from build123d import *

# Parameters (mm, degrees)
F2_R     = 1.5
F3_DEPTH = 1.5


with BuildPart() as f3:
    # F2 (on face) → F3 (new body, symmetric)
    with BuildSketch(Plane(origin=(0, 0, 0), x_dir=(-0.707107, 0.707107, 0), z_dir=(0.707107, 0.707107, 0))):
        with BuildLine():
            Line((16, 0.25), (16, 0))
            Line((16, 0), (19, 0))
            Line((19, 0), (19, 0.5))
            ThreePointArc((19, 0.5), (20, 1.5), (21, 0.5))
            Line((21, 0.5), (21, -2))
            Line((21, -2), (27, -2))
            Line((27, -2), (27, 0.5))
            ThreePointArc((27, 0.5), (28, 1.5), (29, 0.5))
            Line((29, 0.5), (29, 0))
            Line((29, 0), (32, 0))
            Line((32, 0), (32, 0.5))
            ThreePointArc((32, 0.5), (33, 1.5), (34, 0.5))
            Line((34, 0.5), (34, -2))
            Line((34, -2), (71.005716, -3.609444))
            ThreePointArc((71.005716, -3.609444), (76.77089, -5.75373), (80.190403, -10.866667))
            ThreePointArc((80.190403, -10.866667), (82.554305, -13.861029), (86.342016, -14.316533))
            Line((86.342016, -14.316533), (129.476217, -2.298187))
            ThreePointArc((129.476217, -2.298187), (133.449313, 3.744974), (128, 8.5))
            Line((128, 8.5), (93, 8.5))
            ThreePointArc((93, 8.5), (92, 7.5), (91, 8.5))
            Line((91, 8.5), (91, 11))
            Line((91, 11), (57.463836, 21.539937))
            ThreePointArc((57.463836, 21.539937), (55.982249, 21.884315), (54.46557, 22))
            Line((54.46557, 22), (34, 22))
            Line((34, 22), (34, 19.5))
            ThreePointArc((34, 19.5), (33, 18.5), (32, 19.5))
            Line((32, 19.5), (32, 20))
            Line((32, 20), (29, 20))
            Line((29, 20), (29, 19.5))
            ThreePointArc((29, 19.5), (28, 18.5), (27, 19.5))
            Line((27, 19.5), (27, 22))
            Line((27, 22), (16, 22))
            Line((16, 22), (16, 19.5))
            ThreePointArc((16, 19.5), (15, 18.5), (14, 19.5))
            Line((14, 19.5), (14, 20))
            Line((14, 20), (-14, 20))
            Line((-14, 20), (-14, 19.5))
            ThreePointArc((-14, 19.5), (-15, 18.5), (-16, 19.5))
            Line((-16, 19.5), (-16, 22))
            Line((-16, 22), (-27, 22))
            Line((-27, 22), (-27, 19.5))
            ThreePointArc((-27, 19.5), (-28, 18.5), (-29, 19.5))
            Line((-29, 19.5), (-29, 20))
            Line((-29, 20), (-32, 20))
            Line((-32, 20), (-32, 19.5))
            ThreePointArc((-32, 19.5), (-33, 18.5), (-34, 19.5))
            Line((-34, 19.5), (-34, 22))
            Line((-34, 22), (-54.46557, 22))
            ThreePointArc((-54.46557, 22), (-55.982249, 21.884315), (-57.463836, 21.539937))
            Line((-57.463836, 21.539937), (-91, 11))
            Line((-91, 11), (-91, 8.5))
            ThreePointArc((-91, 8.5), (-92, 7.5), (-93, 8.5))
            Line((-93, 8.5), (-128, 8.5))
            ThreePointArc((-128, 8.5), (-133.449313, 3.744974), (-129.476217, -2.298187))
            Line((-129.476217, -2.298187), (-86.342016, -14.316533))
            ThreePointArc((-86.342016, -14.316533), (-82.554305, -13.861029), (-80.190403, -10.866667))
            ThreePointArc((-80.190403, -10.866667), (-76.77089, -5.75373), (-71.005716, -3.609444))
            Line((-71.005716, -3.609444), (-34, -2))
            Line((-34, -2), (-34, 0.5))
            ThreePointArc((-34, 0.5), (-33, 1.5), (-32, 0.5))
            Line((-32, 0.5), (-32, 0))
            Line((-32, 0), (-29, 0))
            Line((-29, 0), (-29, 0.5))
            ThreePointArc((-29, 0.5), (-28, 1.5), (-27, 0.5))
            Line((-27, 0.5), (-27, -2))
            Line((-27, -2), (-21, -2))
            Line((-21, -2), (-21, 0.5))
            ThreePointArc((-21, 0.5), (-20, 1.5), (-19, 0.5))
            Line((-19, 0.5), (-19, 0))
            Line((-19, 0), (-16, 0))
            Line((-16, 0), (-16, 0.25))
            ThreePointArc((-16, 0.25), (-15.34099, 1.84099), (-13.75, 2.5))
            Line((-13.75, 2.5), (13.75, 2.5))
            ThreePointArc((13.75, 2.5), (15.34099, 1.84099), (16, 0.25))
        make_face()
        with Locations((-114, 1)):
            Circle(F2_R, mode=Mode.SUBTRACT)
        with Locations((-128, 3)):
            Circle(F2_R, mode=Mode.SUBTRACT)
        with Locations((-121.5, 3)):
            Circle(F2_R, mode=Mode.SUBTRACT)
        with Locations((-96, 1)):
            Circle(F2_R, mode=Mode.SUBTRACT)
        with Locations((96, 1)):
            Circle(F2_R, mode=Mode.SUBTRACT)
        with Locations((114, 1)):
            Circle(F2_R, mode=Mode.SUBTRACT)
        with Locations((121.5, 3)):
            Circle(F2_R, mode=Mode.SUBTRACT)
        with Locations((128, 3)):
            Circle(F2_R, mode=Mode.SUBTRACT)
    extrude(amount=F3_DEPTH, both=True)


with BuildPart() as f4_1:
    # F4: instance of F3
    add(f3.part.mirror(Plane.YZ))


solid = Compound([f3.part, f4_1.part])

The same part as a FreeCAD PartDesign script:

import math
import FreeCAD as App
import Part
import Sketcher

V = App.Vector
Q = App.Units.Quantity

doc = App.newDocument("Part")
body = doc.addObject("PartDesign::Body", "Body")

# Sketch on an angled plane
sketch1 = body.newObject("Sketcher::SketchObject", "Sketch")
sketch1.Placement = App.Placement(V(0, 0, 0), App.Rotation(V(-0.707106781, 0.707106781, 0), V(0, 0, 0.999999999), V(0.707106781, 0.707106781, 0), "ZXY"))
sketch1.addGeometry(Part.LineSegment(V(16, 0.25, 0), V(16, 0, 0)), False)
sketch1.addGeometry(Part.LineSegment(V(16, 0, 0), V(19, 0, 0)), False)
sketch1.addGeometry(Part.LineSegment(V(19, 0, 0), V(19, 0.5, 0)), False)
sketch1.addGeometry(Part.ArcOfCircle(Part.Circle(V(20, 0.5, 0), V(0, 0, 1), 1), math.radians(0), math.radians(180)), False)
sketch1.addGeometry(Part.LineSegment(V(21, 0.5, 0), V(21, -2, 0)), False)
sketch1.addGeometry(Part.LineSegment(V(21, -2, 0), V(27, -2, 0)), False)
sketch1.addGeometry(Part.LineSegment(V(27, -2, 0), V(27, 0.5, 0)), False)
sketch1.addGeometry(Part.ArcOfCircle(Part.Circle(V(28, 0.5, 0), V(0, 0, 1), 1), math.radians(0), math.radians(180)), False)
sketch1.addGeometry(Part.LineSegment(V(29, 0.5, 0), V(29, 0, 0)), False)
sketch1.addGeometry(Part.LineSegment(V(29, 0, 0), V(32, 0, 0)), False)
sketch1.addGeometry(Part.LineSegment(V(32, 0, 0), V(32, 0.5, 0)), False)
sketch1.addGeometry(Part.ArcOfCircle(Part.Circle(V(33, 0.5, 0), V(0, 0, 1), 1), math.radians(0), math.radians(180)), False)
sketch1.addGeometry(Part.LineSegment(V(34, 0.5, 0), V(34, -2, 0)), False)
sketch1.addGeometry(Part.LineSegment(V(34, -2, 0), V(71.01, -3.61, 0)), False)
sketch1.addGeometry(Part.ArcOfCircle(Part.Circle(V(70.57, -13.6, 0), V(0, 0, 1), 10), math.radians(16), math.radians(88)), False)
sketch1.addGeometry(Part.ArcOfCircle(Part.Circle(V(85, -9.5, 0), V(0, 0, 1), 5), math.radians(-164), math.radians(-74)), False)
sketch1.addGeometry(Part.LineSegment(V(86.34, -14.32, 0), V(129.48, -2.3, 0)), False)
sketch1.addGeometry(Part.ArcOfCircle(Part.Circle(V(128, 3, 0), V(0, 0, 1), 5.5), math.radians(-74), math.radians(90)), False)
sketch1.addGeometry(Part.LineSegment(V(128, 8.5, 0), V(93, 8.5, 0)), False)
sketch1.addGeometry(Part.ArcOfCircle(Part.Circle(V(92, 8.5, 0), V(0, 0, 1), 1), math.radians(180), math.radians(360)), False)
sketch1.addGeometry(Part.LineSegment(V(91, 8.5, 0), V(91, 11, 0)), False)
sketch1.addGeometry(Part.LineSegment(V(91, 11, 0), V(57.46, 21.54, 0)), False)
sketch1.addGeometry(Part.ArcOfCircle(Part.Circle(V(54.47, 12, 0), V(0, 0, 1), 10), math.radians(72.55), math.radians(90)), False)
sketch1.addGeometry(Part.LineSegment(V(54.47, 22, 0), V(34, 22, 0)), False)
sketch1.addGeometry(Part.LineSegment(V(34, 22, 0), V(34, 19.5, 0)), False)
sketch1.addGeometry(Part.ArcOfCircle(Part.Circle(V(33, 19.5, 0), V(0, 0, 1), 1), math.radians(180), math.radians(360)), False)
sketch1.addGeometry(Part.LineSegment(V(32, 19.5, 0), V(32, 20, 0)), False)
sketch1.addGeometry(Part.LineSegment(V(32, 20, 0), V(29, 20, 0)), False)
sketch1.addGeometry(Part.LineSegment(V(29, 20, 0), V(29, 19.5, 0)), False)
sketch1.addGeometry(Part.ArcOfCircle(Part.Circle(V(28, 19.5, 0), V(0, 0, 1), 1), math.radians(180), math.radians(360)), False)
sketch1.addGeometry(Part.LineSegment(V(27, 19.5, 0), V(27, 22, 0)), False)
sketch1.addGeometry(Part.LineSegment(V(27, 22, 0), V(16, 22, 0)), False)
sketch1.addGeometry(Part.LineSegment(V(16, 22, 0), V(16, 19.5, 0)), False)
sketch1.addGeometry(Part.ArcOfCircle(Part.Circle(V(15, 19.5, 0), V(0, 0, 1), 1), math.radians(180), math.radians(360)), False)
sketch1.addGeometry(Part.LineSegment(V(14, 19.5, 0), V(14, 20, 0)), False)
sketch1.addGeometry(Part.LineSegment(V(14, 20, 0), V(-14, 20, 0)), False)
sketch1.addGeometry(Part.LineSegment(V(-14, 20, 0), V(-14, 19.5, 0)), False)
sketch1.addGeometry(Part.ArcOfCircle(Part.Circle(V(-15, 19.5, 0), V(0, 0, 1), 1), math.radians(180), math.radians(360)), False)
sketch1.addGeometry(Part.LineSegment(V(-16, 19.5, 0), V(-16, 22, 0)), False)
sketch1.addGeometry(Part.LineSegment(V(-16, 22, 0), V(-27, 22, 0)), False)
sketch1.addGeometry(Part.LineSegment(V(-27, 22, 0), V(-27, 19.5, 0)), False)
sketch1.addGeometry(Part.ArcOfCircle(Part.Circle(V(-28, 19.5, 0), V(0, 0, 1), 1), math.radians(180), math.radians(360)), False)
sketch1.addGeometry(Part.LineSegment(V(-29, 19.5, 0), V(-29, 20, 0)), False)
sketch1.addGeometry(Part.LineSegment(V(-29, 20, 0), V(-32, 20, 0)), False)
sketch1.addGeometry(Part.LineSegment(V(-32, 20, 0), V(-32, 19.5, 0)), False)
sketch1.addGeometry(Part.ArcOfCircle(Part.Circle(V(-33, 19.5, 0), V(0, 0, 1), 1), math.radians(180), math.radians(360)), False)
sketch1.addGeometry(Part.LineSegment(V(-34, 19.5, 0), V(-34, 22, 0)), False)
sketch1.addGeometry(Part.LineSegment(V(-34, 22, 0), V(-54.47, 22, 0)), False)
sketch1.addGeometry(Part.ArcOfCircle(Part.Circle(V(-54.47, 12, 0), V(0, 0, 1), 10), math.radians(90), math.radians(107.45)), False)
sketch1.addGeometry(Part.LineSegment(V(-57.46, 21.54, 0), V(-91, 11, 0)), False)
sketch1.addGeometry(Part.LineSegment(V(-91, 11, 0), V(-91, 8.5, 0)), False)
sketch1.addGeometry(Part.ArcOfCircle(Part.Circle(V(-92, 8.5, 0), V(0, 0, 1), 1), math.radians(180), math.radians(360)), False)
sketch1.addGeometry(Part.LineSegment(V(-93, 8.5, 0), V(-128, 8.5, 0)), False)
sketch1.addGeometry(Part.ArcOfCircle(Part.Circle(V(-128, 3, 0), V(0, 0, 1), 5.5), math.radians(90), math.radians(254)), False)
sketch1.addGeometry(Part.LineSegment(V(-129.48, -2.3, 0), V(-86.34, -14.32, 0)), False)
sketch1.addGeometry(Part.ArcOfCircle(Part.Circle(V(-85, -9.5, 0), V(0, 0, 1), 5), math.radians(-106), math.radians(-16)), False)
sketch1.addGeometry(Part.ArcOfCircle(Part.Circle(V(-70.57, -13.6, 0), V(0, 0, 1), 10), math.radians(92), math.radians(164)), False)
sketch1.addGeometry(Part.LineSegment(V(-71.01, -3.61, 0), V(-34, -2, 0)), False)
sketch1.addGeometry(Part.LineSegment(V(-34, -2, 0), V(-34, 0.5, 0)), False)
sketch1.addGeometry(Part.ArcOfCircle(Part.Circle(V(-33, 0.5, 0), V(0, 0, 1), 1), math.radians(0), math.radians(180)), False)
sketch1.addGeometry(Part.LineSegment(V(-32, 0.5, 0), V(-32, 0, 0)), False)
sketch1.addGeometry(Part.LineSegment(V(-32, 0, 0), V(-29, 0, 0)), False)
sketch1.addGeometry(Part.LineSegment(V(-29, 0, 0), V(-29, 0.5, 0)), False)
sketch1.addGeometry(Part.ArcOfCircle(Part.Circle(V(-28, 0.5, 0), V(0, 0, 1), 1), math.radians(0), math.radians(180)), False)
sketch1.addGeometry(Part.LineSegment(V(-27, 0.5, 0), V(-27, -2, 0)), False)
sketch1.addGeometry(Part.LineSegment(V(-27, -2, 0), V(-21, -2, 0)), False)
sketch1.addGeometry(Part.LineSegment(V(-21, -2, 0), V(-21, 0.5, 0)), False)
sketch1.addGeometry(Part.ArcOfCircle(Part.Circle(V(-20, 0.5, 0), V(0, 0, 1), 1), math.radians(0), math.radians(180)), False)
sketch1.addGeometry(Part.LineSegment(V(-19, 0.5, 0), V(-19, 0, 0)), False)
sketch1.addGeometry(Part.LineSegment(V(-19, 0, 0), V(-16, 0, 0)), False)
sketch1.addGeometry(Part.LineSegment(V(-16, 0, 0), V(-16, 0.25, 0)), False)
sketch1.addGeometry(Part.ArcOfCircle(Part.Circle(V(-13.75, 0.25, 0), V(0, 0, 1), 2.25), math.radians(90), math.radians(180)), False)
sketch1.addGeometry(Part.LineSegment(V(-13.75, 2.5, 0), V(13.75, 2.5, 0)), False)
sketch1.addGeometry(Part.ArcOfCircle(Part.Circle(V(13.75, 0.25, 0), V(0, 0, 1), 2.25), math.radians(0), math.radians(90)), False)
sketch1.addGeometry(Part.Circle(V(-114, 1, 0), V(0, 0, 1), 1.5), False)
sketch1.addGeometry(Part.Circle(V(-96, 1, 0), V(0, 0, 1), 1.5), False)
sketch1.addGeometry(Part.Circle(V(96, 1, 0), V(0, 0, 1), 1.5), False)
sketch1.addGeometry(Part.Circle(V(114, 1, 0), V(0, 0, 1), 1.5), False)
sketch1.addGeometry(Part.Circle(V(-128, 3, 0), V(0, 0, 1), 1.5), False)
sketch1.addGeometry(Part.Circle(V(-121.5, 3, 0), V(0, 0, 1), 1.5), False)
sketch1.addGeometry(Part.Circle(V(121.5, 3, 0), V(0, 0, 1), 1.5), False)
sketch1.addGeometry(Part.Circle(V(128, 3, 0), V(0, 0, 1), 1.5), False)
sketch1.addConstraint(Sketcher.Constraint("Coincident", 0, 2, 1, 1))
sketch1.addConstraint(Sketcher.Constraint("Coincident", 1, 2, 2, 1))
sketch1.addConstraint(Sketcher.Constraint("Tangent", 2, 2, 3, 2))
sketch1.addConstraint(Sketcher.Constraint("Tangent", 3, 1, 4, 1))
sketch1.addConstraint(Sketcher.Constraint("Coincident", 4, 2, 5, 1))
sketch1.addConstraint(Sketcher.Constraint("Coincident", 5, 2, 6, 1))
sketch1.addConstraint(Sketcher.Constraint("Tangent", 6, 2, 7, 2))
sketch1.addConstraint(Sketcher.Constraint("Tangent", 7, 1, 8, 1))
sketch1.addConstraint(Sketcher.Constraint("Coincident", 8, 2, 9, 1))
sketch1.addConstraint(Sketcher.Constraint("Coincident", 9, 2, 10, 1))
sketch1.addConstraint(Sketcher.Constraint("Tangent", 10, 2, 11, 2))
sketch1.addConstraint(Sketcher.Constraint("Tangent", 11, 1, 12, 1))
sketch1.addConstraint(Sketcher.Constraint("Coincident", 12, 2, 13, 1))
sketch1.addConstraint(Sketcher.Constraint("Tangent", 13, 2, 14, 2))
sketch1.addConstraint(Sketcher.Constraint("Tangent", 14, 1, 15, 1))
sketch1.addConstraint(Sketcher.Constraint("Tangent", 15, 2, 16, 1))
sketch1.addConstraint(Sketcher.Constraint("Tangent", 16, 2, 17, 1))
sketch1.addConstraint(Sketcher.Constraint("Tangent", 17, 2, 18, 1))
sketch1.addConstraint(Sketcher.Constraint("Coincident", 18, 2, 19, 2))
sketch1.addConstraint(Sketcher.Constraint("Tangent", 19, 1, 20, 1))
sketch1.addConstraint(Sketcher.Constraint("Coincident", 20, 2, 21, 1))
sketch1.addConstraint(Sketcher.Constraint("Tangent", 21, 2, 22, 1))
sketch1.addConstraint(Sketcher.Constraint("Tangent", 22, 2, 23, 1))
sketch1.addConstraint(Sketcher.Constraint("Coincident", 23, 2, 24, 1))
sketch1.addConstraint(Sketcher.Constraint("Tangent", 24, 2, 25, 2))
sketch1.addConstraint(Sketcher.Constraint("Tangent", 25, 1, 26, 1))
sketch1.addConstraint(Sketcher.Constraint("Coincident", 26, 2, 27, 1))
sketch1.addConstraint(Sketcher.Constraint("Coincident", 27, 2, 28, 1))
sketch1.addConstraint(Sketcher.Constraint("Tangent", 28, 2, 29, 2))
sketch1.addConstraint(Sketcher.Constraint("Tangent", 29, 1, 30, 1))
sketch1.addConstraint(Sketcher.Constraint("Coincident", 30, 2, 31, 1))
sketch1.addConstraint(Sketcher.Constraint("Coincident", 31, 2, 32, 1))
sketch1.addConstraint(Sketcher.Constraint("Tangent", 32, 2, 33, 2))
sketch1.addConstraint(Sketcher.Constraint("Tangent", 33, 1, 34, 1))
sketch1.addConstraint(Sketcher.Constraint("Coincident", 34, 2, 35, 1))
sketch1.addConstraint(Sketcher.Constraint("Coincident", 35, 2, 36, 1))
sketch1.addConstraint(Sketcher.Constraint("Tangent", 36, 2, 37, 2))
sketch1.addConstraint(Sketcher.Constraint("Tangent", 37, 1, 38, 1))
sketch1.addConstraint(Sketcher.Constraint("Coincident", 38, 2, 39, 1))
sketch1.addConstraint(Sketcher.Constraint("Coincident", 39, 2, 40, 1))
sketch1.addConstraint(Sketcher.Constraint("Tangent", 40, 2, 41, 2))
sketch1.addConstraint(Sketcher.Constraint("Tangent", 41, 1, 42, 1))
sketch1.addConstraint(Sketcher.Constraint("Coincident", 42, 2, 43, 1))
sketch1.addConstraint(Sketcher.Constraint("Coincident", 43, 2, 44, 1))
sketch1.addConstraint(Sketcher.Constraint("Tangent", 44, 2, 45, 2))
sketch1.addConstraint(Sketcher.Constraint("Tangent", 45, 1, 46, 1))
sketch1.addConstraint(Sketcher.Constraint("Coincident", 46, 2, 47, 1))
sketch1.addConstraint(Sketcher.Constraint("Tangent", 47, 2, 48, 1))
sketch1.addConstraint(Sketcher.Constraint("Tangent", 48, 2, 49, 1))
sketch1.addConstraint(Sketcher.Constraint("Coincident", 49, 2, 50, 1))
sketch1.addConstraint(Sketcher.Constraint("Tangent", 50, 2, 51, 2))
sketch1.addConstraint(Sketcher.Constraint("Coincident", 51, 1, 52, 1))
sketch1.addConstraint(Sketcher.Constraint("Tangent", 52, 2, 53, 1))
sketch1.addConstraint(Sketcher.Constraint("Tangent", 53, 2, 54, 1))
sketch1.addConstraint(Sketcher.Constraint("Tangent", 54, 2, 55, 1))
sketch1.addConstraint(Sketcher.Constraint("Tangent", 55, 2, 56, 2))
sketch1.addConstraint(Sketcher.Constraint("Tangent", 56, 1, 57, 1))
sketch1.addConstraint(Sketcher.Constraint("Coincident", 57, 2, 58, 1))
sketch1.addConstraint(Sketcher.Constraint("Tangent", 58, 2, 59, 2))
sketch1.addConstraint(Sketcher.Constraint("Tangent", 59, 1, 60, 1))
sketch1.addConstraint(Sketcher.Constraint("Coincident", 60, 2, 61, 1))
sketch1.addConstraint(Sketcher.Constraint("Coincident", 61, 2, 62, 1))
sketch1.addConstraint(Sketcher.Constraint("Tangent", 62, 2, 63, 2))
sketch1.addConstraint(Sketcher.Constraint("Tangent", 63, 1, 64, 1))
sketch1.addConstraint(Sketcher.Constraint("Coincident", 64, 2, 65, 1))
sketch1.addConstraint(Sketcher.Constraint("Coincident", 65, 2, 66, 1))
sketch1.addConstraint(Sketcher.Constraint("Tangent", 66, 2, 67, 2))
sketch1.addConstraint(Sketcher.Constraint("Tangent", 67, 1, 68, 1))
sketch1.addConstraint(Sketcher.Constraint("Coincident", 68, 2, 69, 1))
sketch1.addConstraint(Sketcher.Constraint("Coincident", 69, 2, 70, 1))
sketch1.addConstraint(Sketcher.Constraint("Tangent", 70, 2, 71, 2))
sketch1.addConstraint(Sketcher.Constraint("Tangent", 71, 1, 72, 1))
sketch1.addConstraint(Sketcher.Constraint("Tangent", 72, 2, 73, 2))
sketch1.addConstraint(Sketcher.Constraint("Tangent", 73, 1, 0, 1))
sketch1.addConstraint(Sketcher.Constraint("Vertical", 0))
sketch1.addConstraint(Sketcher.Constraint("Horizontal", 1))
sketch1.addConstraint(Sketcher.Constraint("Vertical", 2))
sketch1.addConstraint(Sketcher.Constraint("Vertical", 4))
sketch1.addConstraint(Sketcher.Constraint("Horizontal", 5))
sketch1.addConstraint(Sketcher.Constraint("Vertical", 6))
sketch1.addConstraint(Sketcher.Constraint("Vertical", 8))
sketch1.addConstraint(Sketcher.Constraint("Horizontal", 9))
sketch1.addConstraint(Sketcher.Constraint("Vertical", 10))
sketch1.addConstraint(Sketcher.Constraint("Vertical", 12))
sketch1.addConstraint(Sketcher.Constraint("Horizontal", 18))
sketch1.addConstraint(Sketcher.Constraint("Vertical", 20))
sketch1.addConstraint(Sketcher.Constraint("Horizontal", 23))
sketch1.addConstraint(Sketcher.Constraint("Vertical", 24))
sketch1.addConstraint(Sketcher.Constraint("Vertical", 26))
sketch1.addConstraint(Sketcher.Constraint("Horizontal", 27))
sketch1.addConstraint(Sketcher.Constraint("Vertical", 28))
sketch1.addConstraint(Sketcher.Constraint("Vertical", 30))
sketch1.addConstraint(Sketcher.Constraint("Horizontal", 31))
sketch1.addConstraint(Sketcher.Constraint("Vertical", 32))
sketch1.addConstraint(Sketcher.Constraint("Vertical", 34))
sketch1.addConstraint(Sketcher.Constraint("Horizontal", 35))
sketch1.addConstraint(Sketcher.Constraint("Vertical", 36))
sketch1.addConstraint(Sketcher.Constraint("Vertical", 38))
sketch1.addConstraint(Sketcher.Constraint("Horizontal", 39))
sketch1.addConstraint(Sketcher.Constraint("Vertical", 40))
sketch1.addConstraint(Sketcher.Constraint("Vertical", 42))
sketch1.addConstraint(Sketcher.Constraint("Horizontal", 43))
sketch1.addConstraint(Sketcher.Constraint("Vertical", 44))
sketch1.addConstraint(Sketcher.Constraint("Vertical", 46))
sketch1.addConstraint(Sketcher.Constraint("Horizontal", 47))
sketch1.addConstraint(Sketcher.Constraint("Vertical", 50))
sketch1.addConstraint(Sketcher.Constraint("Horizontal", 52))
sketch1.addConstraint(Sketcher.Constraint("Vertical", 58))
sketch1.addConstraint(Sketcher.Constraint("Vertical", 60))
sketch1.addConstraint(Sketcher.Constraint("Horizontal", 61))
sketch1.addConstraint(Sketcher.Constraint("Vertical", 62))
sketch1.addConstraint(Sketcher.Constraint("Vertical", 64))
sketch1.addConstraint(Sketcher.Constraint("Horizontal", 65))
sketch1.addConstraint(Sketcher.Constraint("Vertical", 66))
sketch1.addConstraint(Sketcher.Constraint("Vertical", 68))
sketch1.addConstraint(Sketcher.Constraint("Horizontal", 69))
sketch1.addConstraint(Sketcher.Constraint("Vertical", 70))
sketch1.addConstraint(Sketcher.Constraint("Horizontal", 72))
sketch1.addConstraint(Sketcher.Constraint("Coincident", 78, 3, 53, 3))
sketch1.addConstraint(Sketcher.Constraint("Coincident", 81, 3, 17, 3))
sketch1.addConstraint(Sketcher.Constraint("Equal", 3, 7))
sketch1.addConstraint(Sketcher.Constraint("Equal", 7, 11))
sketch1.addConstraint(Sketcher.Constraint("Equal", 11, 19))
sketch1.addConstraint(Sketcher.Constraint("Equal", 14, 22))
sketch1.addConstraint(Sketcher.Constraint("Equal", 19, 25))
sketch1.addConstraint(Sketcher.Constraint("Equal", 25, 29))
sketch1.addConstraint(Sketcher.Constraint("Equal", 29, 33))
sketch1.addConstraint(Sketcher.Constraint("Equal", 33, 37))
sketch1.addConstraint(Sketcher.Constraint("Equal", 37, 41))
sketch1.addConstraint(Sketcher.Constraint("Equal", 41, 45))
sketch1.addConstraint(Sketcher.Constraint("Equal", 22, 48))
sketch1.addConstraint(Sketcher.Constraint("Equal", 45, 51))
sketch1.addConstraint(Sketcher.Constraint("Equal", 17, 53))
sketch1.addConstraint(Sketcher.Constraint("Equal", 15, 55))
sketch1.addConstraint(Sketcher.Constraint("Equal", 48, 56))
sketch1.addConstraint(Sketcher.Constraint("Equal", 51, 59))
sketch1.addConstraint(Sketcher.Constraint("Equal", 59, 63))
sketch1.addConstraint(Sketcher.Constraint("Equal", 63, 67))
sketch1.addConstraint(Sketcher.Constraint("Equal", 71, 73))
sketch1.addConstraint(Sketcher.Constraint("Equal", 74, 75))
sketch1.addConstraint(Sketcher.Constraint("Equal", 75, 76))
sketch1.addConstraint(Sketcher.Constraint("Equal", 76, 77))
sketch1.addConstraint(Sketcher.Constraint("Equal", 77, 78))
sketch1.addConstraint(Sketcher.Constraint("Equal", 78, 79))
sketch1.addConstraint(Sketcher.Constraint("Equal", 79, 80))
sketch1.addConstraint(Sketcher.Constraint("Equal", 80, 81))
sketch1.addConstraint(Sketcher.Constraint("Symmetric", 9, 2, 60, 2, -1, 1))
sketch1.addConstraint(Sketcher.Constraint("Symmetric", 1, 2, 68, 2, -1, 1))
sketch1.addConstraint(Sketcher.Constraint("Symmetric", 33, 3, 37, 3, -2))
sketch1.addConstraint(Sketcher.Constraint("Symmetric", 29, 3, 41, 3, -2))
sketch1.addConstraint(Sketcher.Constraint("Symmetric", 25, 3, 45, 3, -2))
sketch1.addConstraint(Sketcher.Constraint("Symmetric", 22, 3, 48, 3, -2))
sketch1.addConstraint(Sketcher.Constraint("Symmetric", 19, 3, 51, 3, -2))
sketch1.addConstraint(Sketcher.Constraint("Symmetric", 17, 3, 53, 3, -2))
sketch1.addConstraint(Sketcher.Constraint("Symmetric", 15, 3, 55, 3, -2))
sketch1.addConstraint(Sketcher.Constraint("Symmetric", 7, 3, 63, 3, -2))
sketch1.addConstraint(Sketcher.Constraint("Symmetric", 75, 3, 76, 3, -2))
sketch1.addConstraint(Sketcher.Constraint("Symmetric", 74, 3, 77, 3, -2))
sketch1.addConstraint(Sketcher.Constraint("Symmetric", 79, 3, 80, 3, -2))
sketch1.addConstraint(Sketcher.Constraint("Symmetric", 13, 2, 56, 1, -2))
sketch1.addConstraint(Sketcher.Constraint("Symmetric", 0, 2, 69, 2, -2))
sketch1.addConstraint(Sketcher.Constraint("PointOnObject", 8, 2, -1))
sketch1.addConstraint(Sketcher.Constraint("Horizontal", 3, 3, 7, 3))
sketch1.addConstraint(Sketcher.Constraint("Horizontal", 7, 3, 11, 3))
sketch1.addConstraint(Sketcher.Constraint("Horizontal", 25, 3, 29, 3))
sketch1.addConstraint(Sketcher.Constraint("Horizontal", 29, 3, 33, 3))
sketch1.addConstraint(Sketcher.Constraint("Horizontal", 11, 3, 59, 3))
sketch1.addConstraint(Sketcher.Constraint("Horizontal", 63, 3, 67, 3))
sketch1.addConstraint(Sketcher.Constraint("Horizontal", 74, 3, 75, 3))
sketch1.addConstraint(Sketcher.Constraint("Horizontal", 78, 3, 79, 3))
sketch1.addConstraint(Sketcher.Constraint("Horizontal", 5, 2, 12, 2))
sketch1.addConstraint(Sketcher.Constraint("Horizontal", 51, 3, 17, 2))
sketch1.addConstraint(Sketcher.Constraint("Horizontal", 23, 2, 30, 2))
sketch1.addConstraint(Sketcher.Constraint("Horizontal", 27, 2, 34, 2))
sketch1.addConstraint(Sketcher.Constraint("Horizontal", 31, 2, 38, 2))
sketch1.addConstraint(Sketcher.Constraint("Horizontal", 35, 2, 42, 2))
sketch1.addConstraint(Sketcher.Constraint("Horizontal", 21, 2, 48, 2))
sketch1.addConstraint(Sketcher.Constraint("Horizontal", 57, 2, 64, 2))
sketch1.addConstraint(Sketcher.Constraint("Vertical", 11, 3, 25, 3))
sketch1.addConstraint(Sketcher.Constraint("Vertical", 7, 3, 29, 3))
sketch1.addConstraint(Sketcher.Constraint("Vertical", 0, 2, 31, 2))
sketch1.addConstraint(Sketcher.Constraint("Equal", 1, 9))
sketch1.addConstraint(Sketcher.Constraint("Equal", 12, 20))
sketch1.addConstraint(Sketcher.Constraint("Equal", 20, 24))
sketch1.addConstraint(Sketcher.Constraint("Equal", 10, 26))
sketch1.addConstraint(Sketcher.Constraint("Diameter", 74, Q("3 mm")))
sketch1.addConstraint(Sketcher.Constraint("Radius", 3, Q("1 mm")))
sketch1.addConstraint(Sketcher.Constraint("Radius", 14, Q("10.000002 mm")))
sketch1.addConstraint(Sketcher.Constraint("Radius", 15, Q("5 mm")))
sketch1.addConstraint(Sketcher.Constraint("Radius", 17, Q("5.5 mm")))
sketch1.addConstraint(Sketcher.Constraint("DistanceX", 1, 1, 1, 2, Q("3 mm")))
sketch1.addConstraint(Sketcher.Constraint("DistanceX", 5, 1, 5, 2, Q("6 mm")))
sketch1.addConstraint(Sketcher.Constraint("DistanceX", 18, 2, 18, 1, Q("35 mm")))
sketch1.addConstraint(Sketcher.Constraint("DistanceX", 35, 2, 35, 1, Q("28 mm")))
sketch1.addConstraint(Sketcher.Constraint("Radius", 71, Q("2.250001 mm")))
sketch1.addConstraint(Sketcher.Constraint("DistanceY", 2, 1, 2, 2, Q("0.5 mm")))
sketch1.addConstraint(Sketcher.Constraint("DistanceY", 4, 2, 4, 1, Q("2.5 mm")))
sketch1.addConstraint(Sketcher.Constraint("DistanceX", -1, 1, 15, 3, Q("85 mm")))
sketch1.addConstraint(Sketcher.Constraint("DistanceX", -1, 1, 17, 3, Q("128 mm")))
sketch1.addConstraint(Sketcher.Constraint("DistanceY", -1, 1, 17, 3, Q("3 mm")))
sketch1.addConstraint(Sketcher.Constraint("DistanceY", -1, 1, 22, 3, Q("11.999999 mm")))
sketch1.addConstraint(Sketcher.Constraint("DistanceX", 74, 3, -1, 1, Q("114 mm")))
sketch1.addConstraint(Sketcher.Constraint("DistanceY", -1, 1, 74, 3, Q("1 mm")))
sketch1.addConstraint(Sketcher.Constraint("DistanceX", 75, 3, -1, 1, Q("96 mm")))
sketch1.addConstraint(Sketcher.Constraint("DistanceY", 0, 2, 0, 1, Q("0.25 mm")))
sketch1.addConstraint(Sketcher.Constraint("DistanceY", 14, 3, -1, 1, Q("13.600001 mm")))
sketch1.addConstraint(Sketcher.Constraint("DistanceY", 15, 3, -1, 1, Q("9.499999 mm")))
sketch1.addConstraint(Sketcher.Constraint("DistanceX", 79, 3, -1, 1, Q("121.5 mm")))
sketch1.addConstraint(Sketcher.Constraint("DistanceX", 23, 2, 23, 1, Q("20.46557 mm")))
pad1 = body.newObject("PartDesign::Pad", "Pad")
pad1.Profile = sketch1
pad1.Length = 3
pad1.Midplane = True
body2 = doc.addObject("PartDesign::Body", "Body001")
doc.recompute()

mirroring = doc.addObject("Part::Mirroring", "Mirroring")
mirroring.Source = body
mirroring.Base = V(0, 0, 0)
mirroring.Normal = V(1, 0, 0)
body2.BaseFeature = mirroring
doc.recompute()
mirroring.Visibility = False

doc.recompute()
